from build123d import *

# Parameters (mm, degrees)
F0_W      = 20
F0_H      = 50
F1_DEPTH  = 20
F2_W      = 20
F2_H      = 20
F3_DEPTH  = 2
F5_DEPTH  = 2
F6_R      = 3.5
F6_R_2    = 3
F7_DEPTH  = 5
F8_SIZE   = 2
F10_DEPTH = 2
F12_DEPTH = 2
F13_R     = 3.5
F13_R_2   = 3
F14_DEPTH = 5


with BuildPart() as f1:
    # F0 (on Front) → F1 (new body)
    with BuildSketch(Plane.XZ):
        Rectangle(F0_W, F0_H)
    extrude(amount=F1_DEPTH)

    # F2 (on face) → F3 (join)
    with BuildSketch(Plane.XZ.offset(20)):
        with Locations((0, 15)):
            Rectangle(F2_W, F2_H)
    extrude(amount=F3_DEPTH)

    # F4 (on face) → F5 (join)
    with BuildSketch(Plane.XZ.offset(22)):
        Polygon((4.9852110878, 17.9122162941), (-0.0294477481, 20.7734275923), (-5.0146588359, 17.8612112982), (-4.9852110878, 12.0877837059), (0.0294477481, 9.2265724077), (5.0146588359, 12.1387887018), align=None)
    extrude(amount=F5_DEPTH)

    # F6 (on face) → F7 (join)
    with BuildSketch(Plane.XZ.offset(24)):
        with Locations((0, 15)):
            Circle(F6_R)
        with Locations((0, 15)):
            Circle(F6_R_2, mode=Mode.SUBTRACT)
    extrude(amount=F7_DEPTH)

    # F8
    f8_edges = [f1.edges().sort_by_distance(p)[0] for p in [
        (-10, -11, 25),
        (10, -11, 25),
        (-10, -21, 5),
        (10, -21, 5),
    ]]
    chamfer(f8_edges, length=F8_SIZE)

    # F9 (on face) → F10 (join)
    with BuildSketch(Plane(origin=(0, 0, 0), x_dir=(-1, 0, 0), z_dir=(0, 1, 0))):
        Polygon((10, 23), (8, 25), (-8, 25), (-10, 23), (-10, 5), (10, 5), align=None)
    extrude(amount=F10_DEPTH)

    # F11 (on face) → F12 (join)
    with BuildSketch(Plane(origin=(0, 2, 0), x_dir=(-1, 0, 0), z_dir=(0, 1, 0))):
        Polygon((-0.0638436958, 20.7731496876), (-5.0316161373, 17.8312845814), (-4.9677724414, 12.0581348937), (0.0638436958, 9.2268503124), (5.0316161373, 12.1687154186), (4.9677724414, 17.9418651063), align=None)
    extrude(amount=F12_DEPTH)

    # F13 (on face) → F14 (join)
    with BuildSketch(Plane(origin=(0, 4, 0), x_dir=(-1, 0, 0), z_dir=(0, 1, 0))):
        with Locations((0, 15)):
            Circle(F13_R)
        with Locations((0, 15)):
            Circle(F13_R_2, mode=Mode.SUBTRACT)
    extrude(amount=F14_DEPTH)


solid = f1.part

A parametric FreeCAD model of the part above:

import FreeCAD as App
import Part
import Sketcher

V = App.Vector
Q = App.Units.Quantity


def edges_at(feature, points):
    """Names of the edges that pass closest to the given points."""
    edges = feature.Shape.Edges
    near = lambda p: min(range(len(edges)), key=lambda i: edges[i].distToShape(Part.Vertex(*p))[0])
    return sorted({f"Edge{near(p) + 1}" for p in points})

doc = App.newDocument("Part")
body = doc.addObject("PartDesign::Body", "Body")

sketch1 = body.newObject("Sketcher::SketchObject", "Sketch")
sketch1.AttachmentSupport = (doc.getObject("XZ_Plane"), [""])
sketch1.MapMode = "FlatFace"
sketch1.addGeometry([
    Part.LineSegment(V(-10, 25, 0), V(-10, -25, 0)),
    Part.LineSegment(V(-10, -25, 0), V(10, -25, 0)),
    Part.LineSegment(V(10, -25, 0), V(10, 25, 0)),
    Part.LineSegment(V(10, 25, 0), V(-10, 25, 0)),
], False)
sketch1.addConstraint([
    Sketcher.Constraint("Coincident", 0, 2, 1, 1),
    Sketcher.Constraint("Coincident", 1, 2, 2, 1),
    Sketcher.Constraint("Coincident", 2, 2, 3, 1),
    Sketcher.Constraint("Coincident", 3, 2, 0, 1),
    Sketcher.Constraint("Vertical", 0),
    Sketcher.Constraint("Horizontal", 1),
    Sketcher.Constraint("Vertical", 2),
    Sketcher.Constraint("Horizontal", 3),
    Sketcher.Constraint("Symmetric", 0, 2, 2, 2, -1, 1),
    Sketcher.Constraint("DistanceX", 1, 1, 1, 2, Q("20 mm")),
    Sketcher.Constraint("DistanceY", 0, 2, 0, 1, Q("50 mm")),
])
pad1 = body.newObject("PartDesign::Pad", "Pad")
pad1.Profile = sketch1
pad1.Length = 20

sketch2 = body.newObject("Sketcher::SketchObject", "Sketch001")
sketch2.AttachmentSupport = (doc.getObject("XZ_Plane"), [""])
sketch2.MapMode = "FlatFace"
sketch2.AttachmentOffset = App.Placement(V(0, 0, 20), App.Rotation())
sketch2.addGeometry([
    Part.LineSegment(V(-10, 25, 0), V(-10, 5, 0)),
    Part.LineSegment(V(-10, 5, 0), V(10, 5, 0)),
    Part.LineSegment(V(10, 5, 0), V(10, 25, 0)),
    Part.LineSegment(V(10, 25, 0), V(-10, 25, 0)),
], False)
sketch2.addConstraint([
    Sketcher.Constraint("Coincident", 0, 2, 1, 1),
    Sketcher.Constraint("Coincident", 1, 2, 2, 1),
    Sketcher.Constraint("Coincident", 2, 2, 3, 1),
    Sketcher.Constraint("Coincident", 3, 2, 0, 1),
    Sketcher.Constraint("Vertical", 0),
    Sketcher.Constraint("Horizontal", 1),
    Sketcher.Constraint("Vertical", 2),
    Sketcher.Constraint("Horizontal", 3),
    Sketcher.Constraint("Equal", 3, 0),
    Sketcher.Constraint("DistanceX", 1, 1, 1, 2, Q("20 mm")),
    Sketcher.Constraint("DistanceX", 0, 2, -1, 1, Q("10 mm")),
    Sketcher.Constraint("DistanceY", -1, 1, 0, 2, Q("5 mm")),
])
pad2 = body.newObject("PartDesign::Pad", "Pad001")
pad2.Profile = sketch2
pad2.Length = 2

sketch3 = body.newObject("Sketcher::SketchObject", "Sketch002")
sketch3.AttachmentSupport = (doc.getObject("XZ_Plane"), [""])
sketch3.MapMode = "FlatFace"
sketch3.AttachmentOffset = App.Placement(V(0, 0, 22), App.Rotation())
sketch3.addGeometry([
    Part.LineSegment(V(5, 18, 0), V(0, 21, 0)),
    Part.LineSegment(V(0, 21, 0), V(-5, 18, 0)),
    Part.LineSegment(V(-5, 18, 0), V(-5, 12, 0)),
    Part.LineSegment(V(-5, 12, 0), V(0, 9, 0)),
    Part.LineSegment(V(0, 9, 0), V(5, 12, 0)),
    Part.LineSegment(V(5, 12, 0), V(5, 18, 0)),
], False)
sketch3.addConstraint([
    Sketcher.Constraint("Coincident", 0, 2, 1, 1),
    Sketcher.Constraint("Coincident", 1, 2, 2, 1),
    Sketcher.Constraint("Coincident", 2, 2, 3, 1),
    Sketcher.Constraint("Coincident", 3, 2, 4, 1),
    Sketcher.Constraint("Coincident", 4, 2, 5, 1),
    Sketcher.Constraint("Coincident", 5, 2, 0, 1),
    Sketcher.Constraint("Parallel", 0, 3),
    Sketcher.Constraint("Parallel", 1, 4),
    Sketcher.Constraint("Parallel", 2, 5),
    Sketcher.Constraint("Equal", 0, 1),
    Sketcher.Constraint("Equal", 1, 2),
    Sketcher.Constraint("Equal", 2, 3),
    Sketcher.Constraint("DistanceX", 1, 2, -1, 1, Q("5.014659 mm")),
    Sketcher.Constraint("DistanceY", -1, 1, 1, 2, Q("17.861211 mm")),
    Sketcher.Constraint("DistanceX", 2, 2, -1, 1, Q("4.985211 mm")),
    Sketcher.Constraint("DistanceX", -1, 1, 4, 2, Q("5.014659 mm")),
    Sketcher.Constraint("DistanceY", -1, 1, 4, 2, Q("12.138789 mm")),
    Sketcher.Constraint("DistanceX", 1, 2, 0, 2, Q("4.985211 mm")),
])
pad3 = body.newObject("PartDesign::Pad", "Pad002")
pad3.Profile = sketch3
pad3.Length = 2

sketch4 = body.newObject("Sketcher::SketchObject", "Sketch003")
sketch4.AttachmentSupport = (doc.getObject("XZ_Plane"), [""])
sketch4.MapMode = "FlatFace"
sketch4.AttachmentOffset = App.Placement(V(0, 0, 24), App.Rotation())
sketch4.addGeometry([
    Part.Circle(V(0, 15, 0), V(0, 0, 1), 3.5),
    Part.Circle(V(0, 15, 0), V(0, 0, 1), 3),
], False)
sketch4.addConstraint([
    Sketcher.Constraint("Coincident", 1, 3, 0, 3),
    Sketcher.Constraint("PointOnObject", 0, 3, -2),
    Sketcher.Constraint("Diameter", 0, Q("7 mm")),
    Sketcher.Constraint("Diameter", 1, Q("6 mm")),
    Sketcher.Constraint("DistanceY", -1, 1, 0, 3, Q("15 mm")),
])
pad4 = body.newObject("PartDesign::Pad", "Pad003")
pad4.Profile = sketch4
pad4.Length = 5
doc.recompute()

chamfer = body.newObject("PartDesign::Chamfer", "Chamfer")
chamfer.Base = (pad4, edges_at(pad4, [
    (-10, -11, 25),
    (10, -11, 25),
    (-10, -21, 5),
    (10, -21, 5),
]))
chamfer.Size = 2

sketch5 = body.newObject("Sketcher::SketchObject", "Sketch004")
sketch5.AttachmentSupport = (doc.getObject("XZ_Plane"), [""])
sketch5.MapMode = "FlatFace"
sketch5.addGeometry([
    Part.LineSegment(V(-10, 23, 0), V(-8, 25, 0)),
    Part.LineSegment(V(-8, 25, 0), V(8, 25, 0)),
    Part.LineSegment(V(8, 25, 0), V(10, 23, 0)),
    Part.LineSegment(V(10, 23, 0), V(10, 5, 0)),
    Part.LineSegment(V(10, 5, 0), V(-10, 5, 0)),
    Part.LineSegment(V(-10, 5, 0), V(-10, 23, 0)),
], False)
sketch5.addConstraint([
    Sketcher.Constraint("Coincident", 0, 2, 1, 1),
    Sketcher.Constraint("Coincident", 1, 2, 2, 1),
    Sketcher.Constraint("Coincident", 2, 2, 3, 1),
    Sketcher.Constraint("Coincident", 3, 2, 4, 1),
    Sketcher.Constraint("Coincident", 4, 2, 5, 1),
    Sketcher.Constraint("Coincident", 5, 2, 0, 1),
    Sketcher.Constraint("Horizontal", 1),
    Sketcher.Constraint("Vertical", 3),
    Sketcher.Constraint("Horizontal", 4),
    Sketcher.Constraint("Vertical", 5),
    Sketcher.Constraint("Symmetric", 2, 2, 5, 2, -2),
    Sketcher.Constraint("Perpendicular", 0, 2),
    Sketcher.Constraint("Equal", 0, 2),
    Sketcher.Constraint("DistanceX", 1, 1, 1, 2, Q("16 mm")),
    Sketcher.Constraint("DistanceX", 4, 2, 4, 1, Q("20 mm")),
    Sketcher.Constraint("DistanceY", 3, 2, 3, 1, Q("18 mm")),
    Sketcher.Constraint("DistanceY", -1, 1, 0, 2, Q("25 mm")),
])
pad5 = body.newObject("PartDesign::Pad", "Pad004")
pad5.Profile = sketch5
pad5.Length = 2
pad5.Reversed = True

sketch6 = body.newObject("Sketcher::SketchObject", "Sketch005")
sketch6.AttachmentSupport = (doc.getObject("XZ_Plane"), [""])
sketch6.MapMode = "FlatFace"
sketch6.AttachmentOffset = App.Placement(V(0, 0, -2), App.Rotation())
sketch6.addGeometry([
    Part.LineSegment(V(0.063844, 20.77315, 0), V(5.031616, 17.831285, 0)),
    Part.LineSegment(V(5.031616, 17.831285, 0), V(4.967772, 12.058135, 0)),
    Part.LineSegment(V(4.967772, 12.058135, 0), V(-0.063844, 9.22685, 0)),
    Part.LineSegment(V(-0.063844, 9.22685, 0), V(-5.031616, 12.168715, 0)),
    Part.LineSegment(V(-5.031616, 12.168715, 0), V(-4.967772, 17.941865, 0)),
    Part.LineSegment(V(-4.967772, 17.941865, 0), V(0.063844, 20.77315, 0)),
], False)
sketch6.addConstraint([
    Sketcher.Constraint("Coincident", 0, 2, 1, 1),
    Sketcher.Constraint("Coincident", 1, 2, 2, 1),
    Sketcher.Constraint("Coincident", 2, 2, 3, 1),
    Sketcher.Constraint("Coincident", 3, 2, 4, 1),
    Sketcher.Constraint("Coincident", 4, 2, 5, 1),
    Sketcher.Constraint("Coincident", 5, 2, 0, 1),
    Sketcher.Constraint("Parallel", 0, 3),
    Sketcher.Constraint("Parallel", 1, 4),
    Sketcher.Constraint("Parallel", 2, 5),
    Sketcher.Constraint("Equal", 0, 1),
    Sketcher.Constraint("Equal", 1, 2),
    Sketcher.Constraint("Equal", 2, 3),
    Sketcher.Constraint("DistanceY", 2, 2, 5, 2, Q("11.546299 mm")),
    Sketcher.Constraint("DistanceY", -1, 1, 2, 2, Q("9.22685 mm")),
    Sketcher.Constraint("DistanceY", 1, 2, 0, 2, Q("5.77315 mm")),
    Sketcher.Constraint("DistanceX", 2, 2, 0, 2, Q("5.09546 mm")),
    Sketcher.Constraint("DistanceX", 3, 2, 1, 2, Q("9.999389 mm")),
    Sketcher.Constraint("DistanceX", -1, 1, 0, 2, Q("5.031616 mm")),
])
pad6 = body.newObject("PartDesign::Pad", "Pad005")
pad6.Profile = sketch6
pad6.Length = 2
pad6.Reversed = True

sketch7 = body.newObject("Sketcher::SketchObject", "Sketch006")
sketch7.AttachmentSupport = (doc.getObject("XZ_Plane"), [""])
sketch7.MapMode = "FlatFace"
sketch7.AttachmentOffset = App.Placement(V(0, 0, -4), App.Rotation())
sketch7.addGeometry([
    Part.Circle(V(0, 15, 0), V(0, 0, 1), 3.5),
    Part.Circle(V(0, 15, 0), V(0, 0, 1), 3),
], False)
sketch7.addConstraint([
    Sketcher.Constraint("Coincident", 1, 3, 0, 3),
    Sketcher.Constraint("PointOnObject", 0, 3, -2),
    Sketcher.Constraint("Diameter", 0, Q("7 mm")),
    Sketcher.Constraint("Diameter", 1, Q("6 mm")),
    Sketcher.Constraint("DistanceY", -1, 1, 0, 3, Q("15 mm")),
])
pad7 = body.newObject("PartDesign::Pad", "Pad006")
pad7.Profile = sketch7
pad7.Length = 5
pad7.Reversed = True

doc.recompute()
